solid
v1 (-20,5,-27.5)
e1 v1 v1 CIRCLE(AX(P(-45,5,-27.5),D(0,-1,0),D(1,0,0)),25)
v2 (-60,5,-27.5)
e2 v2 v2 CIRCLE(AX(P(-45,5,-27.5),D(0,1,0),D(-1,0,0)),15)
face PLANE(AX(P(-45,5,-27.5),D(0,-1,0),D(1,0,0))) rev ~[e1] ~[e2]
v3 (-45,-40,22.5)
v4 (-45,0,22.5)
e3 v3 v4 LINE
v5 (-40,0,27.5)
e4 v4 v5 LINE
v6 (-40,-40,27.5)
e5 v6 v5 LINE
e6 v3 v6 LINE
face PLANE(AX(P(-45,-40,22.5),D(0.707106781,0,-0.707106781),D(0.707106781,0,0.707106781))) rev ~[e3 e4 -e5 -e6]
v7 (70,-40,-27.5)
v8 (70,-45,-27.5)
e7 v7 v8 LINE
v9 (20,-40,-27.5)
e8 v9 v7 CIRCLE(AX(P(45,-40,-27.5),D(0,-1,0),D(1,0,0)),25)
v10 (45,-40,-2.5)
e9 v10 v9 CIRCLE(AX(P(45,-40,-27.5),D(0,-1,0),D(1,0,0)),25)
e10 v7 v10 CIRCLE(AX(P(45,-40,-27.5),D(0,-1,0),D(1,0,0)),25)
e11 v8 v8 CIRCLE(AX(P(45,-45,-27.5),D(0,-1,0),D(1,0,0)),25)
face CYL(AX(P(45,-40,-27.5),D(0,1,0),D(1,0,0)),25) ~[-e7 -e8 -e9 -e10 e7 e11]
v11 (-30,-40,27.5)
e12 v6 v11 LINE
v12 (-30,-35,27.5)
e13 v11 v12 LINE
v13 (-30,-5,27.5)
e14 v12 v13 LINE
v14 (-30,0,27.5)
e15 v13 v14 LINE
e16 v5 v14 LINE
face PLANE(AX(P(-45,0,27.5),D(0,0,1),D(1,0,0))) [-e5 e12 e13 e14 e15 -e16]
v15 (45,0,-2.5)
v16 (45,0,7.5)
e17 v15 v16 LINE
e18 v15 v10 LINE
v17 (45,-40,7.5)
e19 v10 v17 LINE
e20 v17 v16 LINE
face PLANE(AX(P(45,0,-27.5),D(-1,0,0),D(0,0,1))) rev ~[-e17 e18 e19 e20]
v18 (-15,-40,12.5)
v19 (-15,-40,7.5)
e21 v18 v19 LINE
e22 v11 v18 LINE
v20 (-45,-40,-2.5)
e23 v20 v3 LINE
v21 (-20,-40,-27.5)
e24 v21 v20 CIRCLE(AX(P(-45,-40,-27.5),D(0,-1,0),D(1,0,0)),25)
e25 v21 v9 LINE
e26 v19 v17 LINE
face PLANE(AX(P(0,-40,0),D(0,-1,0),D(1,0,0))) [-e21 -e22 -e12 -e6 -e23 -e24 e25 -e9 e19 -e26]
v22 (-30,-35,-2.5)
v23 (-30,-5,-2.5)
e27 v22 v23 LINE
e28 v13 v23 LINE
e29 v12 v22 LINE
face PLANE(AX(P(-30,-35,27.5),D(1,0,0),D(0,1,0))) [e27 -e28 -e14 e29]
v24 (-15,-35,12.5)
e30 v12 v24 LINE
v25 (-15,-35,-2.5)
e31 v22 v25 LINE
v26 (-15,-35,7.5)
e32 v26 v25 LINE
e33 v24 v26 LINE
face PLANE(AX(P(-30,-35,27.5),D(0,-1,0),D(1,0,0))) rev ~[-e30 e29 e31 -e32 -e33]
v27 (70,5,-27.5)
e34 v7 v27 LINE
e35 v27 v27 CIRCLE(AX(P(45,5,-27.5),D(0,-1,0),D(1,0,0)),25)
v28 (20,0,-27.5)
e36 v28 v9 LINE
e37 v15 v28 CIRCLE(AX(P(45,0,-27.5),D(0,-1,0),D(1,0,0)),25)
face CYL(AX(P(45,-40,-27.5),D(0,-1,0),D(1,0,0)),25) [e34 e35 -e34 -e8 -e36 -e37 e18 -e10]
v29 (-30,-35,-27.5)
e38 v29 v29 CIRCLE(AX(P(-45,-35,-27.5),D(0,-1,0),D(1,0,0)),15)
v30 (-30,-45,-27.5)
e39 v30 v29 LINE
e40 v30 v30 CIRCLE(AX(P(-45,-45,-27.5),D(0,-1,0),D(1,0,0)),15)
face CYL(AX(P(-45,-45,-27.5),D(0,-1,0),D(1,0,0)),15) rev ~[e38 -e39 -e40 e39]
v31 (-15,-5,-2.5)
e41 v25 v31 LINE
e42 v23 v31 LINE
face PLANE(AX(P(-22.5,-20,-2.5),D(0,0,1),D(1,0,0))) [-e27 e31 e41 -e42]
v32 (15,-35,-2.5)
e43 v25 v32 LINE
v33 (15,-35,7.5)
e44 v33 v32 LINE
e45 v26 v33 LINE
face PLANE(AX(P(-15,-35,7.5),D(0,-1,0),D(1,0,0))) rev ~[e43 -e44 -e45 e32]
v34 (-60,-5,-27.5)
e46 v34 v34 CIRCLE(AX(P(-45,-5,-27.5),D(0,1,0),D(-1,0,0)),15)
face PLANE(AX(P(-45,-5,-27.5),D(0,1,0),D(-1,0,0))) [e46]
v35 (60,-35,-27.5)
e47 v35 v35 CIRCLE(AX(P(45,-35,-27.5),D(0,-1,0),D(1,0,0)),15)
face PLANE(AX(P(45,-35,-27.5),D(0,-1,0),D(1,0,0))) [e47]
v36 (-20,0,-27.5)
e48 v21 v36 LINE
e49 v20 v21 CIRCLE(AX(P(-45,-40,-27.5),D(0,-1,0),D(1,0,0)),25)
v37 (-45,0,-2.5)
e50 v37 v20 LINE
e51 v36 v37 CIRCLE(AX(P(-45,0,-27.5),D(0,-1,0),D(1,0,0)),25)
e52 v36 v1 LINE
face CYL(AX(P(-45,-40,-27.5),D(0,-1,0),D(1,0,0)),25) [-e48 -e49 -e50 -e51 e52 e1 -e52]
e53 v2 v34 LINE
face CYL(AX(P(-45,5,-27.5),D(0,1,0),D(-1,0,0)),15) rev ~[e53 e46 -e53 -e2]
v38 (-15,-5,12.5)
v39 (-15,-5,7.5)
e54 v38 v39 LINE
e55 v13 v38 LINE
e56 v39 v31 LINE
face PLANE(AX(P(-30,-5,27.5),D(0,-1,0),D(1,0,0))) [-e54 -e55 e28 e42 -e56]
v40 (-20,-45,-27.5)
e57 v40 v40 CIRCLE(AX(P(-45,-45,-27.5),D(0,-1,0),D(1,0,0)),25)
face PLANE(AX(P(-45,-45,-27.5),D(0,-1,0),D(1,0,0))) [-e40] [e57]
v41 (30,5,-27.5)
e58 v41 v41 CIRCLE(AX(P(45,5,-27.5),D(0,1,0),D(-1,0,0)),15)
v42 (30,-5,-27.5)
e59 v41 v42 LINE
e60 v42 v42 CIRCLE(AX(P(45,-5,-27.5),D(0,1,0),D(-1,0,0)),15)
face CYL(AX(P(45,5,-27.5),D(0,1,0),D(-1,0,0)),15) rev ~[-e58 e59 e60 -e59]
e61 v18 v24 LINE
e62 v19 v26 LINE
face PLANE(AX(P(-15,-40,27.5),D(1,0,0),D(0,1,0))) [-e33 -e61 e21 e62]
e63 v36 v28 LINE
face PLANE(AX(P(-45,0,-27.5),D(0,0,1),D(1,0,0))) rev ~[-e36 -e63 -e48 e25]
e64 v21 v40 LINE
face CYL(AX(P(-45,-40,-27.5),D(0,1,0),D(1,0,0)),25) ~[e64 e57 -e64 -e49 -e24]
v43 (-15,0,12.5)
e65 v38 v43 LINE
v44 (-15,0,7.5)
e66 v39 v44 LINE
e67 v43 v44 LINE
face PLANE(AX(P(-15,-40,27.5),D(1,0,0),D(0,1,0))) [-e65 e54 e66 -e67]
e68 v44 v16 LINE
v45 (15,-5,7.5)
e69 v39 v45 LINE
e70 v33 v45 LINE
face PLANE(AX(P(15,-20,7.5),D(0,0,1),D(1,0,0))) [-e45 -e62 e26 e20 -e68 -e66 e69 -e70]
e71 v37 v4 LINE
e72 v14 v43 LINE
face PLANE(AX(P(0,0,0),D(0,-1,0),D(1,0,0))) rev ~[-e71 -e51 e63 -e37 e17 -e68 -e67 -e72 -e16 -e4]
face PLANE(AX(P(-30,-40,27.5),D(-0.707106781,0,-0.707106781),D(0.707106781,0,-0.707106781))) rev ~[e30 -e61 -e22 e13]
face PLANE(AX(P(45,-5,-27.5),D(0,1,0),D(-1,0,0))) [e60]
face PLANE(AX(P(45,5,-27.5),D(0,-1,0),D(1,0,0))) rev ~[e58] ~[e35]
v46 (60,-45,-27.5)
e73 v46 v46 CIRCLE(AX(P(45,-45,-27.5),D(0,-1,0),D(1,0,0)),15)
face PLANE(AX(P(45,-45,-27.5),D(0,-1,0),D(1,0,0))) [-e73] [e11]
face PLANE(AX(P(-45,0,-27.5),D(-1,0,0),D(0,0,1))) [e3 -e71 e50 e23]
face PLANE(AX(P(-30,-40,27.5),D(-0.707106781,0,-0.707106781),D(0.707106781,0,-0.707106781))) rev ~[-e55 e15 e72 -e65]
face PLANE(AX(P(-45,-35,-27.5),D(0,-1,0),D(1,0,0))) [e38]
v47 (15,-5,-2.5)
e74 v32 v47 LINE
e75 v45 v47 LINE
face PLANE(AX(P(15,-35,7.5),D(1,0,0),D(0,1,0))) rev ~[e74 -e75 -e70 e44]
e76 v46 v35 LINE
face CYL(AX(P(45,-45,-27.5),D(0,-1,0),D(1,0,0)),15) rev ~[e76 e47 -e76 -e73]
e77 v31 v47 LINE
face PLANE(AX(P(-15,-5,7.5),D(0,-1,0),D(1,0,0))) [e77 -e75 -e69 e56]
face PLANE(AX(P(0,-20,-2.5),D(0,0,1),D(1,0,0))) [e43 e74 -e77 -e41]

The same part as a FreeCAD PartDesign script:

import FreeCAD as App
import Part
import Sketcher

V = App.Vector
Q = App.Units.Quantity


def add_polygon(sketch, points):
    """Adds a closed chain of lines whose ends are joined by coincident constraints."""
    first, n = sketch.GeometryCount, len(points)
    for a, b in zip(points, points[1:] + points[:1]):
        sketch.addGeometry(Part.LineSegment(App.Vector(*a, 0), App.Vector(*b, 0)), False)
    for i in range(n):
        sketch.addConstraint(Sketcher.Constraint("Coincident", first + i, 2, first + (i + 1) % n, 1))

doc = App.newDocument("Part")
body = doc.addObject("PartDesign::Body", "Body")

# Sketch on XZ plane
sketch1 = doc.addObject("Sketcher::SketchObject", "Sketch")
body.addObject(sketch1)
sketch1.AttachmentSupport = (doc.XZ_Plane, [""])
sketch1.MapMode = "FlatFace"
add_polygon(sketch1, [(-45, 27.5), (-45, -27.5), (45, -27.5), (45, 27.5)])  # lines 0-3
sketch1.addConstraint([
    Sketcher.Constraint("Vertical", 0),
    Sketcher.Constraint("Horizontal", 1),
    Sketcher.Constraint("Vertical", 2),
    Sketcher.Constraint("Horizontal", 3),
    Sketcher.Constraint("Symmetric", 0, 2, 2, 2, -1, 1),
    Sketcher.Constraint("DistanceX", 1, 1, 1, 2, Q("90 mm")),
    Sketcher.Constraint("DistanceY", 0, 2, 0, 1, Q("55 mm")),
])
pad1 = doc.addObject("PartDesign::Pad", "Pad")
body.addObject(pad1)
pad1.Profile = sketch1
pad1.Length = 40

# Sketch on XZ plane
sketch2 = doc.addObject("Sketcher::SketchObject", "Sketch001")
body.addObject(sketch2)
sketch2.AttachmentSupport = (doc.XZ_Plane, [""])
sketch2.MapMode = "FlatFace"
sketch2.AttachmentOffset = App.Placement(V(0, 0, 40), App.Rotation())
sketch2.addGeometry([
    Part.Circle(V(-45, -27.5, 0), V(0, 0, 1), 25),
    Part.Circle(V(45, -27.5, 0), V(0, 0, 1), 25),
], False)
sketch2.addConstraint([
    Sketcher.Constraint("Equal", 0, 1),
    Sketcher.Constraint("Symmetric", 0, 3, 1, 3, -2),
    Sketcher.Constraint("Diameter", 0, Q("50 mm")),
    Sketcher.Constraint("DistanceX", 0, 3, -1, 1, Q("45 mm")),
    Sketcher.Constraint("DistanceY", 0, 3, -1, 1, Q("27.5 mm")),
])
pad2 = doc.addObject("PartDesign::Pad", "Pad001")
body.addObject(pad2)
pad2.Profile = sketch2
pad2.Length = 45
pad2.Reversed = True

# Sketch on XZ plane
sketch3 = doc.addObject("Sketcher::SketchObject", "Sketch002")
body.addObject(sketch3)
sketch3.AttachmentSupport = (doc.XZ_Plane, [""])
sketch3.MapMode = "FlatFace"
sketch3.AttachmentOffset = App.Placement(V(0, 0, 40), App.Rotation())
sketch3.addGeometry([
    Part.Circle(V(-45, -27.5, 0), V(0, 0, 1), 25),
    Part.Circle(V(45, -27.5, 0), V(0, 0, 1), 25),
], False)
sketch3.addConstraint([
    Sketcher.Constraint("Equal", 0, 1),
    Sketcher.Constraint("Symmetric", 0, 3, 1, 3, -2),
    Sketcher.Constraint("Diameter", 0, Q("50 mm")),
    Sketcher.Constraint("DistanceX", 0, 3, -1, 1, Q("45 mm")),
    Sketcher.Constraint("DistanceY", 0, 3, -1, 1, Q("27.5 mm")),
])
pad3 = doc.addObject("PartDesign::Pad", "Pad002")
body.addObject(pad3)
pad3.Profile = sketch3
pad3.Length = 5

# Sketch on XY plane
sketch4 = doc.addObject("Sketcher::SketchObject", "Sketch003")
body.addObject(sketch4)
sketch4.AttachmentSupport = (doc.XY_Plane, [""])
sketch4.MapMode = "FlatFace"
sketch4.AttachmentOffset = App.Placement(V(0, 0, 27.5), App.Rotation())
add_polygon(sketch4, [(-15, 0), (-15, -40), (45, -40), (45, 0)])  # lines 0-3
sketch4.addConstraint([
    Sketcher.Constraint("Vertical", 0),
    Sketcher.Constraint("Horizontal", 1),
    Sketcher.Constraint("Vertical", 2),
    Sketcher.Constraint("Horizontal", 3),
    Sketcher.Constraint("PointOnObject", 2, 2, -1),
    Sketcher.Constraint("DistanceX", 1, 1, 1, 2, Q("60 mm")),
    Sketcher.Constraint("DistanceY", 0, 2, 0, 1, Q("40 mm")),
    Sketcher.Constraint("DistanceX", 0, 2, -1, 1, Q("15 mm")),
])
pocket1 = doc.addObject("PartDesign::Pocket", "Pocket")
body.addObject(pocket1)
pocket1.Profile = sketch4
pocket1.Length = 20

# Sketch on XY plane
sketch5 = doc.addObject("Sketcher::SketchObject", "Sketch004")
body.addObject(sketch5)
sketch5.AttachmentSupport = (doc.XY_Plane, [""])
sketch5.MapMode = "FlatFace"
sketch5.AttachmentOffset = App.Placement(V(0, 0, 7.5), App.Rotation())
add_polygon(sketch5, [(-15, -5), (-15, -35), (15, -35), (15, -5)])  # lines 0-3
sketch5.addConstraint([
    Sketcher.Constraint("Vertical", 0),
    Sketcher.Constraint("Horizontal", 1),
    Sketcher.Constraint("Vertical", 2),
    Sketcher.Constraint("Horizontal", 3),
    Sketcher.Constraint("Equal", 3, 0),
    Sketcher.Constraint("DistanceX", 1, 1, 1, 2, Q("30 mm")),
    Sketcher.Constraint("DistanceX", 0, 2, -1, 1, Q("15 mm")),
    Sketcher.Constraint("DistanceY", 0, 2, -1, 1, Q("35 mm")),
])
pocket2 = doc.addObject("PartDesign::Pocket", "Pocket001")
body.addObject(pocket2)
pocket2.Profile = sketch5
pocket2.Length = 10

# Sketch on XY plane
sketch6 = doc.addObject("Sketcher::SketchObject", "Sketch005")
body.addObject(sketch6)
sketch6.AttachmentSupport = (doc.XY_Plane, [""])
sketch6.MapMode = "FlatFace"
sketch6.AttachmentOffset = App.Placement(V(0, 0, 27.5), App.Rotation())
add_polygon(sketch6, [(-30, -5), (-30, -35), (-15, -35), (-15, -5)])  # lines 0-3
sketch6.addConstraint([
    Sketcher.Constraint("Vertical", 0),
    Sketcher.Constraint("Horizontal", 1),
    Sketcher.Constraint("Vertical", 2),
    Sketcher.Constraint("Horizontal", 3),
    Sketcher.Constraint("DistanceX", 1, 1, 1, 2, Q("15 mm")),
    Sketcher.Constraint("DistanceY", 0, 2, 0, 1, Q("30 mm")),
    Sketcher.Constraint("DistanceX", 0, 2, -1, 1, Q("30 mm")),
    Sketcher.Constraint("DistanceY", 0, 2, -1, 1, Q("35 mm")),
])
pocket3 = doc.addObject("PartDesign::Pocket", "Pocket002")
body.addObject(pocket3)
pocket3.Profile = sketch6
pocket3.Length = 30

# Sketch on XZ plane
sketch7 = doc.addObject("Sketcher::SketchObject", "Sketch006")
body.addObject(sketch7)
sketch7.AttachmentSupport = (doc.XZ_Plane, [""])
sketch7.MapMode = "FlatFace"
sketch7.AttachmentOffset = App.Placement(V(0, 0, 40), App.Rotation())
add_polygon(sketch7, [(-15, 27.5), (-30, 27.5), (-15, 12.5)])  # lines 0-2
add_polygon(sketch7, [(-45, 22.5), (-40, 27.5), (-45, 27.5)])  # lines 3-5
sketch7.addConstraint([
    Sketcher.Constraint("Horizontal", 0),
    Sketcher.Constraint("Vertical", 2),
    Sketcher.Constraint("Horizontal", 4),
    Sketcher.Constraint("Vertical", 5),
    Sketcher.Constraint("Perpendicular", 1, 3),
    Sketcher.Constraint("Horizontal", 2, 2, 3, 2),
    Sketcher.Constraint("Equal", 0, 2),
    Sketcher.Constraint("DistanceX", 0, 2, 0, 1, Q("15 mm")),
    Sketcher.Constraint("DistanceX", 4, 2, 4, 1, Q("5 mm")),
    Sketcher.Constraint("DistanceX", 0, 2, -1, 1, Q("30 mm")),
    Sketcher.Constraint("DistanceX", 3, 2, -1, 1, Q("40 mm")),
    Sketcher.Constraint("DistanceY", -1, 1, 0, 2, Q("27.5 mm")),
])
pocket4 = doc.addObject("PartDesign::Pocket", "Pocket003")
body.addObject(pocket4)
pocket4.Profile = sketch7
pocket4.Type = "ThroughAll"

# Sketch on XZ plane
sketch8 = doc.addObject("Sketcher::SketchObject", "Sketch007")
body.addObject(sketch8)
sketch8.AttachmentSupport = (doc.XZ_Plane, [""])
sketch8.MapMode = "FlatFace"
sketch8.AttachmentOffset = App.Placement(V(0, 0, 45), App.Rotation())
sketch8.addGeometry(Part.Circle(V(-45, -27.5, 0), V(0, 0, 1), 15), False)
sketch8.addConstraint([
    Sketcher.Constraint("Diameter", 0, Q("30 mm")),
    Sketcher.Constraint("DistanceX", 0, 3, -1, 1, Q("45 mm")),
    Sketcher.Constraint("DistanceY", 0, 3, -1, 1, Q("27.5 mm")),
])
pocket5 = doc.addObject("PartDesign::Pocket", "Pocket004")
body.addObject(pocket5)
pocket5.Profile = sketch8
pocket5.Length = 10

# Sketch on XZ plane
sketch9 = doc.addObject("Sketcher::SketchObject", "Sketch008")
body.addObject(sketch9)
sketch9.AttachmentSupport = (doc.XZ_Plane, [""])
sketch9.MapMode = "FlatFace"
sketch9.AttachmentOffset = App.Placement(V(0, 0, 45), App.Rotation())
sketch9.addGeometry(Part.Circle(V(45, -27.5, 0), V(0, 0, 1), 15), False)
sketch9.addConstraint([
    Sketcher.Constraint("Diameter", 0, Q("30 mm")),
    Sketcher.Constraint("DistanceX", -1, 1, 0, 3, Q("45 mm")),
    Sketcher.Constraint("DistanceY", 0, 3, -1, 1, Q("27.5 mm")),
])
pocket6 = doc.addObject("PartDesign::Pocket", "Pocket005")
body.addObject(pocket6)
pocket6.Profile = sketch9
pocket6.Length = 10

# Sketch on XZ plane
sketch10 = doc.addObject("Sketcher::SketchObject", "Sketch009")
body.addObject(sketch10)
sketch10.AttachmentSupport = (doc.XZ_Plane, [""])
sketch10.MapMode = "FlatFace"
sketch10.AttachmentOffset = App.Placement(V(0, 0, -5), App.Rotation())
sketch10.addGeometry(Part.Circle(V(45, -27.5, 0), V(0, 0, 1), 15), False)
sketch10.addConstraint([
    Sketcher.Constraint("Diameter", 0, Q("30 mm")),
    Sketcher.Constraint("DistanceX", -1, 1, 0, 3, Q("45 mm")),
    Sketcher.Constraint("DistanceY", 0, 3, -1, 1, Q("27.5 mm")),
])
pocket7 = doc.addObject("PartDesign::Pocket", "Pocket006")
body.addObject(pocket7)
pocket7.Profile = sketch10
pocket7.Length = 10
pocket7.Reversed = True

# Sketch on XZ plane
sketch11 = doc.addObject("Sketcher::SketchObject", "Sketch010")
body.addObject(sketch11)
sketch11.AttachmentSupport = (doc.XZ_Plane, [""])
sketch11.MapMode = "FlatFace"
sketch11.AttachmentOffset = App.Placement(V(0, 0, -5), App.Rotation())
sketch11.addGeometry(Part.Circle(V(-45, -27.5, 0), V(0, 0, 1), 15), False)
sketch11.addConstraint([
    Sketcher.Constraint("Diameter", 0, Q("30 mm")),
    Sketcher.Constraint("DistanceX", 0, 3, -1, 1, Q("45 mm")),
    Sketcher.Constraint("DistanceY", 0, 3, -1, 1, Q("27.5 mm")),
])
pocket8 = doc.addObject("PartDesign::Pocket", "Pocket007")
body.addObject(pocket8)
pocket8.Profile = sketch11
pocket8.Length = 10
pocket8.Reversed = True

doc.recompute()
